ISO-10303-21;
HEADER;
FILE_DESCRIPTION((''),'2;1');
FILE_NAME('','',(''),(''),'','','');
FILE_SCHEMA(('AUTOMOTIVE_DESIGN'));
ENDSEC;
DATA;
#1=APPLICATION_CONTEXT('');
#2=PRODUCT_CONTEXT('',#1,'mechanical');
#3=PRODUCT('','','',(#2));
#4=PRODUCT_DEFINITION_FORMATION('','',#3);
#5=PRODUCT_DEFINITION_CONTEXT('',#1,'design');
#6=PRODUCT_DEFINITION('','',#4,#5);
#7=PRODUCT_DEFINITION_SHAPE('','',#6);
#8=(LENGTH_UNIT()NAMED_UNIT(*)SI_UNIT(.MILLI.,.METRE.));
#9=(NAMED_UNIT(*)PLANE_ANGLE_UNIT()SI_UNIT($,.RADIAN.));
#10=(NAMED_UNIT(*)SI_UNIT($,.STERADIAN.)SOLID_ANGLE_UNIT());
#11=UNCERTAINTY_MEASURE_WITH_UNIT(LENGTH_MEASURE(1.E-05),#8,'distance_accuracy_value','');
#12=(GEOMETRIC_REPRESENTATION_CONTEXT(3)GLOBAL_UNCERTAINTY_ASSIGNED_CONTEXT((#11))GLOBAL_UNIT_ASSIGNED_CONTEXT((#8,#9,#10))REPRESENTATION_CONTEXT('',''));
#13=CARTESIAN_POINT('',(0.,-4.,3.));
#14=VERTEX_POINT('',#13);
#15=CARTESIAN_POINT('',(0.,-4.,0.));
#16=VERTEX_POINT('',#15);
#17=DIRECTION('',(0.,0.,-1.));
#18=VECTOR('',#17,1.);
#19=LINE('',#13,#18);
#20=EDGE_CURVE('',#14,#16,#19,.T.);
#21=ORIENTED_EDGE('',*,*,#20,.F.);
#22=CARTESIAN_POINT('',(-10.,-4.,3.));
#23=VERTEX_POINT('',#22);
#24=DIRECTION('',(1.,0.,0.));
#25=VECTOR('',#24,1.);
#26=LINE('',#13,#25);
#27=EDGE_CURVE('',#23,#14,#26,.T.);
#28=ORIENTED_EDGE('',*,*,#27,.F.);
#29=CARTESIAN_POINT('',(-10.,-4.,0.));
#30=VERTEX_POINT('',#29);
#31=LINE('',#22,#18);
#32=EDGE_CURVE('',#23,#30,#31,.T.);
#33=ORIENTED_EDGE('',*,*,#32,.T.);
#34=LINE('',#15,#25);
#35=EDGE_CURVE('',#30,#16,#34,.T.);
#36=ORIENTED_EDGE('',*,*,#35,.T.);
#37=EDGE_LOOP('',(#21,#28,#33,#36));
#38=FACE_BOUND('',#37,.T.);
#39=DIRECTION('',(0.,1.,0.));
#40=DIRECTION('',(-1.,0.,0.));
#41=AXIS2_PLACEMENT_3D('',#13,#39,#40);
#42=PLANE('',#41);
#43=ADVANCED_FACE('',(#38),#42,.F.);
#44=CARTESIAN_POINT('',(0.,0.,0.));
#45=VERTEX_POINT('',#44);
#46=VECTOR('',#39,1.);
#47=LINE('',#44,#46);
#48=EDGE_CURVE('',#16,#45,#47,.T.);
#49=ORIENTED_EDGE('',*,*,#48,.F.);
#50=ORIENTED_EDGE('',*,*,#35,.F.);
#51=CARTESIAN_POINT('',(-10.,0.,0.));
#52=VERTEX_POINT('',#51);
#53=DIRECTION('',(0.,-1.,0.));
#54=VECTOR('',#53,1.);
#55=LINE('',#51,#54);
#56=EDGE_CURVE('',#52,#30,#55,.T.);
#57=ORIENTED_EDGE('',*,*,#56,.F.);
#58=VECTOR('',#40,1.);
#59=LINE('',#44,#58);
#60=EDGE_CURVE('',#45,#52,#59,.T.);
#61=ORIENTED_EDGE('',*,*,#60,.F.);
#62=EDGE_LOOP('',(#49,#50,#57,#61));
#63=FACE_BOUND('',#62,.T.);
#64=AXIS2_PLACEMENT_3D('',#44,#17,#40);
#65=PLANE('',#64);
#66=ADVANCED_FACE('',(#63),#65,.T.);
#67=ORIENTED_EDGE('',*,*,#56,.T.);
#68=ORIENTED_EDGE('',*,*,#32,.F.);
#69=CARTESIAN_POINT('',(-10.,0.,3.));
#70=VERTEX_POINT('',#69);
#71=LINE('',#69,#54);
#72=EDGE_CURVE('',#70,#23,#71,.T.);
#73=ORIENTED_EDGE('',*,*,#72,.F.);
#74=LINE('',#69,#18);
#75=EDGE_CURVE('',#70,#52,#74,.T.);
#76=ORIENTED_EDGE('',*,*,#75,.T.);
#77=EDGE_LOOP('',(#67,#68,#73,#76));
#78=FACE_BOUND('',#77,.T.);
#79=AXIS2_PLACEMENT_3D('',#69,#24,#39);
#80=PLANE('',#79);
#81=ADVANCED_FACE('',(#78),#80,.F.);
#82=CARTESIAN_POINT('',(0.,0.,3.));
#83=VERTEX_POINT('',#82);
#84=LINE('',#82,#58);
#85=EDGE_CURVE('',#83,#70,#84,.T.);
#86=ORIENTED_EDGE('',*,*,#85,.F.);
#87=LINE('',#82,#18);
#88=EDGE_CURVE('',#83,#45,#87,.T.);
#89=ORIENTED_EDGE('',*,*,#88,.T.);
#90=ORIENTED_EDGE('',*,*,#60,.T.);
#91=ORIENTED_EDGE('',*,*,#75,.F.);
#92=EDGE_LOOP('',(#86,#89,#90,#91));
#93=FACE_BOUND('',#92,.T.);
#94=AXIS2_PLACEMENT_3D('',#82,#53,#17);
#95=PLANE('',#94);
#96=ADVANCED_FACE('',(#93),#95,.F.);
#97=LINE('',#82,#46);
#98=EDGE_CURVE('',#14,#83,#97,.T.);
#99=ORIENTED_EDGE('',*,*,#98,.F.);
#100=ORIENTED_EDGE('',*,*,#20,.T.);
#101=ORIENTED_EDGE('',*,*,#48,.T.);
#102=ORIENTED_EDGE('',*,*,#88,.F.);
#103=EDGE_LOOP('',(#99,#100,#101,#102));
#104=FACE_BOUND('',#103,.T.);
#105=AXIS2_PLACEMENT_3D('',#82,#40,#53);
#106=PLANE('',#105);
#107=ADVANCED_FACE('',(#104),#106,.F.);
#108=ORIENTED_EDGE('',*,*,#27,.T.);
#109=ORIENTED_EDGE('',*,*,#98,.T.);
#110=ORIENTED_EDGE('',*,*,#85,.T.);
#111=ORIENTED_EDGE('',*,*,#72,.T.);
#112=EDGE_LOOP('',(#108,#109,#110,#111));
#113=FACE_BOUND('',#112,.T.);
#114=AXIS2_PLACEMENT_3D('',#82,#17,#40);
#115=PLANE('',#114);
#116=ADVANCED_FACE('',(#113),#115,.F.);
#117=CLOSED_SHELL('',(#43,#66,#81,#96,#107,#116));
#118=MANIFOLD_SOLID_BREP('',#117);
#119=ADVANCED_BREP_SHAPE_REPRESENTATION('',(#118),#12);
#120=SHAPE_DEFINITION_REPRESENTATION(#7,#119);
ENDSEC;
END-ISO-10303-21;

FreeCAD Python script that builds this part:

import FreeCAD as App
import Part
import Sketcher
from FreeCAD import Vector
Q = App.Units.Quantity

doc = App.newDocument("Part")
body = doc.addObject("PartDesign::Body", "Body")

# Sketch on XY plane
sketch1 = body.newObject("Sketcher::SketchObject", "Sketch")
sketch1.AttachmentSupport = (doc.getObject("XY_Plane"), [""])
sketch1.MapMode = "FlatFace"
sketch1.addGeometry([
    Part.LineSegment(Vector(-10, 0, 0), Vector(-10, -4, 0)),
    Part.LineSegment(Vector(-10, -4, 0), Vector(0, -4, 0)),
    Part.LineSegment(Vector(0, -4, 0), Vector(0, 0, 0)),
    Part.LineSegment(Vector(0, 0, 0), Vector(-10, 0, 0)),
], False)
sketch1.addConstraint([
    Sketcher.Constraint("Coincident", 0, 2, 1, 1),
    Sketcher.Constraint("Coincident", 1, 2, 2, 1),
    Sketcher.Constraint("Coincident", 2, 2, 3, 1),
    Sketcher.Constraint("Coincident", 3, 2, 0, 1),
    Sketcher.Constraint("Vertical", 0),
    Sketcher.Constraint("Horizontal", 1),
    Sketcher.Constraint("Vertical", 2),
    Sketcher.Constraint("Horizontal", 3),
    Sketcher.Constraint("Coincident", 2, 2, -1, 1),
    Sketcher.Constraint("DistanceX", 1, 1, 1, 2, Q("10 mm")),
    Sketcher.Constraint("DistanceY", 0, 2, 0, 1, Q("4 mm")),
])
pad1 = body.newObject("PartDesign::Pad", "Pad")
pad1.Profile = sketch1
pad1.Length = 3

doc.recompute()
